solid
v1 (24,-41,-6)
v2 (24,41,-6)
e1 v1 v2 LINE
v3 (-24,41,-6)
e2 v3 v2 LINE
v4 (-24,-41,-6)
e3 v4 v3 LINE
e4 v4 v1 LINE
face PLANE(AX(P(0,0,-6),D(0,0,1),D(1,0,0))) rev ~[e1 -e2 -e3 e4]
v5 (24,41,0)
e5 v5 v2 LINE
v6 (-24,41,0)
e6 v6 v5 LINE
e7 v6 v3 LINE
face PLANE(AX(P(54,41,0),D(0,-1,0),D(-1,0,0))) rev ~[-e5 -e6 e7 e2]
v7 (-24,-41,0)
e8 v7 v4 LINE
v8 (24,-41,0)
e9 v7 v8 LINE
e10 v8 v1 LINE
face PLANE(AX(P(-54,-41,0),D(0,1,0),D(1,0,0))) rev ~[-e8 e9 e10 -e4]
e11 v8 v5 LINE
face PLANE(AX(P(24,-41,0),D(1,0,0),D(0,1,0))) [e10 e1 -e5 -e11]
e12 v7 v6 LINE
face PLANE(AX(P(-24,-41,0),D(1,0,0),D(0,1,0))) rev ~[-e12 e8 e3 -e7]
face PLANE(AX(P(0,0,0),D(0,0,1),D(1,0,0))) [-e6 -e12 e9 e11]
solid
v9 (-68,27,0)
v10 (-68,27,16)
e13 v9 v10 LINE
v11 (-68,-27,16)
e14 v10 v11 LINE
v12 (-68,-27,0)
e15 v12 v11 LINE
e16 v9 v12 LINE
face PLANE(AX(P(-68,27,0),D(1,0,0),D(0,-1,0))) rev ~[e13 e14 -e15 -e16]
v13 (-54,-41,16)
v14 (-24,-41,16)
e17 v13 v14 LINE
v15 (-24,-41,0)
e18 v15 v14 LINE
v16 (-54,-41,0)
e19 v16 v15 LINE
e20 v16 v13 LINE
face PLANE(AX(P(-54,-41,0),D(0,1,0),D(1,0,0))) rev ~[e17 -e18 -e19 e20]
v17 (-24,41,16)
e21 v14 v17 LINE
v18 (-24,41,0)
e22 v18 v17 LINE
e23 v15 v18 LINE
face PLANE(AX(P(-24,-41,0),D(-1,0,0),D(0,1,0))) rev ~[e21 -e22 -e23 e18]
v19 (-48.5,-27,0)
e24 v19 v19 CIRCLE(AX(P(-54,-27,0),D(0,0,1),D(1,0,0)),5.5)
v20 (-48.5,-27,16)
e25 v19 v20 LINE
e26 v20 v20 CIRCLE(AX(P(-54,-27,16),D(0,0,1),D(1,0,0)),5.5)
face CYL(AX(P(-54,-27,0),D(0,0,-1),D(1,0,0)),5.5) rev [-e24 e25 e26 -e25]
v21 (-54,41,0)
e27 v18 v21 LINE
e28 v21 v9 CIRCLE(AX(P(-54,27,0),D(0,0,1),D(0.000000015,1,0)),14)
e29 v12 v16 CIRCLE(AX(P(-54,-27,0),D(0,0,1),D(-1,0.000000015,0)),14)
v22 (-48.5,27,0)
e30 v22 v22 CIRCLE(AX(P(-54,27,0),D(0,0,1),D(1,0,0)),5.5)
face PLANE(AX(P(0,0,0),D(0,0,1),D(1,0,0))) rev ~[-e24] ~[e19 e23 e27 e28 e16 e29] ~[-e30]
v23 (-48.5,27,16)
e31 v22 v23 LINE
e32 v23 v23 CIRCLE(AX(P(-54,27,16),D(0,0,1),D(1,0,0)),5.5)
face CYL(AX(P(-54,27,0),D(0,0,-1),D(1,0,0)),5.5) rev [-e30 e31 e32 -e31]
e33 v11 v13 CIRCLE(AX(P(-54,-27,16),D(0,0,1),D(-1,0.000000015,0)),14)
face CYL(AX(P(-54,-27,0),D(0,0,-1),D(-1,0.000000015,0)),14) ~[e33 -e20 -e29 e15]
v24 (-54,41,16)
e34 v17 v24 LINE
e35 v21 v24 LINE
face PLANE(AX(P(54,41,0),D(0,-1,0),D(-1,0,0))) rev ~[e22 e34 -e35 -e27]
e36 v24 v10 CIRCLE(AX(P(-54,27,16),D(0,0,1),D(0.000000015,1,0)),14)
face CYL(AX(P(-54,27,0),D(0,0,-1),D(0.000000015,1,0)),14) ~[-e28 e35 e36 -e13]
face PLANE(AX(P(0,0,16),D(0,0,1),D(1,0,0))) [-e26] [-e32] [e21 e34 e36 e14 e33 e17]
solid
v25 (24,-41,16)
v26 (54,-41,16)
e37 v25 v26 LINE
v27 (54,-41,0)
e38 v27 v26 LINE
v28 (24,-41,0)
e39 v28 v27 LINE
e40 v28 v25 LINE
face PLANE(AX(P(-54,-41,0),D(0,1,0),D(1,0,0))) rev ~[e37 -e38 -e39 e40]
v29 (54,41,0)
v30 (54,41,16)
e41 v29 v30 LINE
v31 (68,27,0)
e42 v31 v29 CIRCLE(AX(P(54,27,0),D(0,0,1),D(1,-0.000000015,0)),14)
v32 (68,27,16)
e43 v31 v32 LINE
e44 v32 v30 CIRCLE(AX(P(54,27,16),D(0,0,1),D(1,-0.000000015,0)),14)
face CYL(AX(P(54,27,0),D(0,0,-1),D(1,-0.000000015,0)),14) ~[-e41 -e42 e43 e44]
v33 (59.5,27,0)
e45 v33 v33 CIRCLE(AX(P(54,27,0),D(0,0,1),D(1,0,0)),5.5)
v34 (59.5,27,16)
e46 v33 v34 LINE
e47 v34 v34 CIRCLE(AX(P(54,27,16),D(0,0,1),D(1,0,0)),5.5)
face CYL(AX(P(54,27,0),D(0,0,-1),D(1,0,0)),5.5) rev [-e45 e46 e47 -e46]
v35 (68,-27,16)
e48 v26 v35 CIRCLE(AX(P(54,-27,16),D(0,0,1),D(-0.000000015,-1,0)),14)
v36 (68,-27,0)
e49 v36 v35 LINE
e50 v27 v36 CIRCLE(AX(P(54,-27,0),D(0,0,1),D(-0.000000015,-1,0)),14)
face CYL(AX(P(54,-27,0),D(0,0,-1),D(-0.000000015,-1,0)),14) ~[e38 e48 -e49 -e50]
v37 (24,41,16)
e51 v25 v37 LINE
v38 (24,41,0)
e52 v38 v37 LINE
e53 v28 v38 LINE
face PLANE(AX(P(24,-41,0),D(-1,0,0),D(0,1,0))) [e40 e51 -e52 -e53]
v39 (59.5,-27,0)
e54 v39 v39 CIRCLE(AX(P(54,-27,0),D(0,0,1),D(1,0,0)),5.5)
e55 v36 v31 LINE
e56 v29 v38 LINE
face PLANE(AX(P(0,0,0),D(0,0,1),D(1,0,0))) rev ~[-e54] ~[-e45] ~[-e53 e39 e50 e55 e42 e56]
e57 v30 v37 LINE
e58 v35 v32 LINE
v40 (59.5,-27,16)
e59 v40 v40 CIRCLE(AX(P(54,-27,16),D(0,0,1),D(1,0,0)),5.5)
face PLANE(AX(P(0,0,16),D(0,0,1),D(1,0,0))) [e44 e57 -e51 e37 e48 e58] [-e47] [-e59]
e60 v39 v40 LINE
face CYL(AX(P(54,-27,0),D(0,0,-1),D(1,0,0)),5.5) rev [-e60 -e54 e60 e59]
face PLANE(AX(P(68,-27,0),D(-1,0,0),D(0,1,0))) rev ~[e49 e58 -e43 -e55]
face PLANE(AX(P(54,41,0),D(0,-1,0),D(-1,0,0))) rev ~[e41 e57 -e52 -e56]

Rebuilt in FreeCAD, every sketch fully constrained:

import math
import FreeCAD as App
import Part
import Sketcher
from FreeCAD import Vector
Q = App.Units.Quantity

doc = App.newDocument("Part")
body = doc.addObject("PartDesign::Body", "Body")
body.AllowCompound = True

sketch1 = doc.addObject("Sketcher::SketchObject", "Sketch")
body.addObject(sketch1)
sketch1.AttachmentSupport = (doc.XY_Plane, [""])
sketch1.MapMode = "FlatFace"
sketch1.addGeometry([
    Part.LineSegment(Vector(-54, -41, 0), Vector(54, -41, 0)),
    Part.ArcOfCircle(Part.Circle(Vector(54, -27, 0), Vector(0, 0, 1), 14), math.radians(-90), math.radians(0)),
    Part.LineSegment(Vector(68, -27, 0), Vector(68, 27, 0)),
    Part.ArcOfCircle(Part.Circle(Vector(54, 27, 0), Vector(0, 0, 1), 14), math.radians(0), math.radians(90)),
    Part.LineSegment(Vector(54, 41, 0), Vector(-54, 41, 0)),
    Part.ArcOfCircle(Part.Circle(Vector(-54, 27, 0), Vector(0, 0, 1), 14), math.radians(90), math.radians(180)),
    Part.LineSegment(Vector(-68, 27, 0), Vector(-68, -27, 0)),
    Part.ArcOfCircle(Part.Circle(Vector(-54, -27, 0), Vector(0, 0, 1), 14), math.radians(180), math.radians(270)),
    Part.Circle(Vector(-54, -27, 0), Vector(0, 0, 1), 6),
    Part.Circle(Vector(54, -27, 0), Vector(0, 0, 1), 6),
    Part.Circle(Vector(-54, 27, 0), Vector(0, 0, 1), 6),
    Part.Circle(Vector(54, 27, 0), Vector(0, 0, 1), 6),
], False)
sketch1.addConstraint([
    Sketcher.Constraint("Tangent", 0, 2, 1, 1),
    Sketcher.Constraint("Tangent", 1, 2, 2, 1),
    Sketcher.Constraint("Tangent", 2, 2, 3, 1),
    Sketcher.Constraint("Tangent", 3, 2, 4, 1),
    Sketcher.Constraint("Tangent", 4, 2, 5, 1),
    Sketcher.Constraint("Tangent", 5, 2, 6, 1),
    Sketcher.Constraint("Tangent", 6, 2, 7, 1),
    Sketcher.Constraint("Tangent", 7, 2, 0, 1),
    Sketcher.Constraint("Horizontal", 0),
    Sketcher.Constraint("Vertical", 2),
    Sketcher.Constraint("Horizontal", 4),
    Sketcher.Constraint("Vertical", 6),
    Sketcher.Constraint("Coincident", 8, 3, 7, 3),
    Sketcher.Constraint("Coincident", 9, 3, 1, 3),
    Sketcher.Constraint("Coincident", 10, 3, 5, 3),
    Sketcher.Constraint("Coincident", 11, 3, 3, 3),
    Sketcher.Constraint("Equal", 1, 3),
    Sketcher.Constraint("Equal", 3, 5),
    Sketcher.Constraint("Equal", 5, 7),
    Sketcher.Constraint("Equal", 8, 9),
    Sketcher.Constraint("Equal", 9, 10),
    Sketcher.Constraint("Equal", 10, 11),
    Sketcher.Constraint("Symmetric", 1, 3, 5, 3, -1, 1),
    Sketcher.Constraint("Diameter", 8, Q("11 mm")),
    Sketcher.Constraint("Radius", 1, Q("14 mm")),
    Sketcher.Constraint("DistanceX", 0, 1, 0, 2, Q("108 mm")),
    Sketcher.Constraint("DistanceY", 2, 1, 2, 2, Q("54 mm")),
])
pad1 = doc.addObject("PartDesign::Pad", "Pad")
body.addObject(pad1)
pad1.Profile = sketch1
pad1.Length = 16

sketch2 = doc.addObject("Sketcher::SketchObject", "Sketch001")
body.addObject(sketch2)
sketch2.AttachmentSupport = (doc.XY_Plane, [""])
sketch2.MapMode = "FlatFace"
sketch2.addGeometry([
    Part.LineSegment(Vector(-24, 41, 0), Vector(-24, -41, 0)),
    Part.LineSegment(Vector(-24, -41, 0), Vector(24, -41, 0)),
    Part.LineSegment(Vector(24, -41, 0), Vector(24, 41, 0)),
    Part.LineSegment(Vector(24, 41, 0), Vector(-24, 41, 0)),
], False)
sketch2.addConstraint([
    Sketcher.Constraint("Coincident", 0, 2, 1, 1),
    Sketcher.Constraint("Coincident", 1, 2, 2, 1),
    Sketcher.Constraint("Coincident", 2, 2, 3, 1),
    Sketcher.Constraint("Coincident", 3, 2, 0, 1),
    Sketcher.Constraint("Vertical", 0),
    Sketcher.Constraint("Horizontal", 1),
    Sketcher.Constraint("Vertical", 2),
    Sketcher.Constraint("Horizontal", 3),
    Sketcher.Constraint("Symmetric", 0, 2, 2, 2, -1, 1),
    Sketcher.Constraint("DistanceX", 1, 1, 1, 2, Q("48 mm")),
    Sketcher.Constraint("DistanceY", 0, 2, 0, 1, Q("82 mm")),
])
pad2 = doc.addObject("PartDesign::Pad", "Pad001")
body.addObject(pad2)
pad2.Profile = sketch2
pad2.Length = 6
pad2.Reversed = True

sketch3 = doc.addObject("Sketcher::SketchObject", "Sketch002")
body.addObject(sketch3)
sketch3.AttachmentSupport = (doc.XY_Plane, [""])
sketch3.MapMode = "FlatFace"
sketch3.addGeometry([
    Part.LineSegment(Vector(-24, 41, 0), Vector(-24, -41, 0)),
    Part.LineSegment(Vector(-24, -41, 0), Vector(24, -41, 0)),
    Part.LineSegment(Vector(24, -41, 0), Vector(24, 41, 0)),
    Part.LineSegment(Vector(24, 41, 0), Vector(-24, 41, 0)),
], False)
sketch3.addConstraint([
    Sketcher.Constraint("Coincident", 0, 2, 1, 1),
    Sketcher.Constraint("Coincident", 1, 2, 2, 1),
    Sketcher.Constraint("Coincident", 2, 2, 3, 1),
    Sketcher.Constraint("Coincident", 3, 2, 0, 1),
    Sketcher.Constraint("Vertical", 0),
    Sketcher.Constraint("Horizontal", 1),
    Sketcher.Constraint("Vertical", 2),
    Sketcher.Constraint("Horizontal", 3),
    Sketcher.Constraint("Symmetric", 0, 2, 2, 2, -1, 1),
    Sketcher.Constraint("DistanceX", 1, 1, 1, 2, Q("48 mm")),
    Sketcher.Constraint("DistanceY", 0, 2, 0, 1, Q("82 mm")),
])
pocket1 = doc.addObject("PartDesign::Pocket", "Pocket")
body.addObject(pocket1)
pocket1.Profile = sketch3
pocket1.Type = "ThroughAll"
pocket1.Reversed = True

doc.recompute()
